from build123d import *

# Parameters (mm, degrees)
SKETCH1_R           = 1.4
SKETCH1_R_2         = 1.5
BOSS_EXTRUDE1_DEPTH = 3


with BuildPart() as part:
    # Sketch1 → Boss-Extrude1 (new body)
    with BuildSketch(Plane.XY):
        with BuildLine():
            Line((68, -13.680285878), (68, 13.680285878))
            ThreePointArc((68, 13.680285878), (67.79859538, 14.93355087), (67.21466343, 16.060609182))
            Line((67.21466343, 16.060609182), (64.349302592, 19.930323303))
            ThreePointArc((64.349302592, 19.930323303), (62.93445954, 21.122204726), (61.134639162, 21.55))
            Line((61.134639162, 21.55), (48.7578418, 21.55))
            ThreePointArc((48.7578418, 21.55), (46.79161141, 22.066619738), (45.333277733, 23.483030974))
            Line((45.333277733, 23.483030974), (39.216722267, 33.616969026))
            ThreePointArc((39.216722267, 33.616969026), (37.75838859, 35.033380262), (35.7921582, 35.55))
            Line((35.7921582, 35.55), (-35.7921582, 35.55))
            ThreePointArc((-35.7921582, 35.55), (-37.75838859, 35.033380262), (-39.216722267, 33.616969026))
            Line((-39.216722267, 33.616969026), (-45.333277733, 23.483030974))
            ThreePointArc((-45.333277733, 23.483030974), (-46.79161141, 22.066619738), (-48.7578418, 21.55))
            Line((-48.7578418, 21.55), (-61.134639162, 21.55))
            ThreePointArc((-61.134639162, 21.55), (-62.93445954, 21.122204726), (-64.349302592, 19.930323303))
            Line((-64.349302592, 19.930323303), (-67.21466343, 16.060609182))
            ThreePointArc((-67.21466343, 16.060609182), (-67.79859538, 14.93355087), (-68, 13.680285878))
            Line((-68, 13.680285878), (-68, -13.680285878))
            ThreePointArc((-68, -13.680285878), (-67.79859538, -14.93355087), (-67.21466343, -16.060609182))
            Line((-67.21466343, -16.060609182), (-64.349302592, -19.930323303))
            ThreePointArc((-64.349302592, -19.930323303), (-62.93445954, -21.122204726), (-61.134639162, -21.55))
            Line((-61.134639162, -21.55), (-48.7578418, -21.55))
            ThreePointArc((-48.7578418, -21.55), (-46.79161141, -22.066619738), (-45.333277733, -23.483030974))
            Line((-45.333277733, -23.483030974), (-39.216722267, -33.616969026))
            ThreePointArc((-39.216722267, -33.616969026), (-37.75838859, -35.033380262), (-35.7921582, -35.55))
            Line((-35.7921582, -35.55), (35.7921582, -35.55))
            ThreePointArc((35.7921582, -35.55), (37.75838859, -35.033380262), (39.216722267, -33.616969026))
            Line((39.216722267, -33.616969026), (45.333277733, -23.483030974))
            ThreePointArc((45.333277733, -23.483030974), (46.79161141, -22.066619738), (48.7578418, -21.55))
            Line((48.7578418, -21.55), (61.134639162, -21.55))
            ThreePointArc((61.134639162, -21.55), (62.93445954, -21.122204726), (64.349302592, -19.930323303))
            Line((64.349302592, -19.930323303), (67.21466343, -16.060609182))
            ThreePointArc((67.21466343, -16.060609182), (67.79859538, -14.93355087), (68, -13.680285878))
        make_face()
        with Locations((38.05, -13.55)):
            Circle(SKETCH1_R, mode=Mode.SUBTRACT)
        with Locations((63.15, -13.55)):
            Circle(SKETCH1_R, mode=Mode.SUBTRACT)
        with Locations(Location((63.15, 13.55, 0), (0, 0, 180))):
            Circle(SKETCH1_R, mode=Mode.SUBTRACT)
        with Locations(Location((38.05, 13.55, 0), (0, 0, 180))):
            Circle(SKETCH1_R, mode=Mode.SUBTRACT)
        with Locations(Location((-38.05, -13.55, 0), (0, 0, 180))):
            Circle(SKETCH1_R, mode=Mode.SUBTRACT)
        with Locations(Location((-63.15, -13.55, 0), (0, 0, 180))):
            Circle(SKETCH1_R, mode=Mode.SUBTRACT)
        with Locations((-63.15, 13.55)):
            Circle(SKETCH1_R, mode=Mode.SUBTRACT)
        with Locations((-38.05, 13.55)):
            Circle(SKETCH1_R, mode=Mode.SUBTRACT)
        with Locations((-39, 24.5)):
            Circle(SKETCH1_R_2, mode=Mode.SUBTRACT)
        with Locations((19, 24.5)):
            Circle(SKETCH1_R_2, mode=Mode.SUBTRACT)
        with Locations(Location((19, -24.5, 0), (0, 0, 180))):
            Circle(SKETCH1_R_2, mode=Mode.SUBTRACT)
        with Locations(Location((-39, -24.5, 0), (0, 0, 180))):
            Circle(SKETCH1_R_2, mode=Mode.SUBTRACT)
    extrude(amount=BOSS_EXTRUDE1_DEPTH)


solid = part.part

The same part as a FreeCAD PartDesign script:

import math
import FreeCAD as App
import Part
import Sketcher
from FreeCAD import Vector

doc = App.newDocument("Part")
body = doc.addObject("PartDesign::Body", "Body")

# Sketch on XY plane
sketch1 = body.newObject("Sketcher::SketchObject", "Sketch")
sketch1.AttachmentSupport = (doc.getObject("XY_Plane"), [""])
sketch1.MapMode = "FlatFace"
sketch1.addGeometry([
    Part.LineSegment(Vector(68, -13.680286, 0), Vector(68, 13.680286, 0)),  # 0
    Part.ArcOfCircle(Part.Circle(Vector(64, 13.680286, 0), Vector(0, 0, 1), 4), math.radians(0), math.radians(36.518394)),  # 1
    Part.LineSegment(Vector(67.214663, 16.060609, 0), Vector(64.349303, 19.930323, 0)),  # 2
    Part.ArcOfCircle(Part.Circle(Vector(61.134639, 17.55, 0), Vector(0, 0, 1), 4), math.radians(36.518394), math.radians(90)),  # 3
    Part.LineSegment(Vector(61.134639, 21.55, 0), Vector(48.757842, 21.55, 0)),  # 4
    Part.ArcOfCircle(Part.Circle(Vector(48.757842, 25.55, 0), Vector(0, 0, 1), 4), math.radians(-148.886019), math.radians(-90)),  # 5
    Part.LineSegment(Vector(45.333278, 23.483031, 0), Vector(39.216722, 33.616969, 0)),  # 6
    Part.ArcOfCircle(Part.Circle(Vector(35.792158, 31.55, 0), Vector(0, 0, 1), 4), math.radians(31.113981), math.radians(90)),  # 7
    Part.LineSegment(Vector(35.792158, 35.55, 0), Vector(-35.792158, 35.55, 0)),  # 8
    Part.ArcOfCircle(Part.Circle(Vector(-35.792158, 31.55, 0), Vector(0, 0, 1), 4), math.radians(90), math.radians(148.886019)),  # 9
    Part.LineSegment(Vector(-39.216722, 33.616969, 0), Vector(-45.333278, 23.483031, 0)),  # 10
    Part.ArcOfCircle(Part.Circle(Vector(-48.757842, 25.55, 0), Vector(0, 0, 1), 4), math.radians(-90), math.radians(-31.113981)),  # 11
    Part.LineSegment(Vector(-48.757842, 21.55, 0), Vector(-61.134639, 21.55, 0)),  # 12
    Part.ArcOfCircle(Part.Circle(Vector(-61.134639, 17.55, 0), Vector(0, 0, 1), 4), math.radians(90), math.radians(143.481606)),  # 13
    Part.LineSegment(Vector(-64.349303, 19.930323, 0), Vector(-67.214663, 16.060609, 0)),  # 14
    Part.ArcOfCircle(Part.Circle(Vector(-64, 13.680286, 0), Vector(0, 0, 1), 4), math.radians(143.481606), math.radians(180)),  # 15
    Part.LineSegment(Vector(-68, 13.680286, 0), Vector(-68, -13.680286, 0)),  # 16
    Part.ArcOfCircle(Part.Circle(Vector(-64, -13.680286, 0), Vector(0, 0, 1), 4), math.radians(180), math.radians(216.518394)),  # 17
    Part.LineSegment(Vector(-67.214663, -16.060609, 0), Vector(-64.349303, -19.930323, 0)),  # 18
    Part.ArcOfCircle(Part.Circle(Vector(-61.134639, -17.55, 0), Vector(0, 0, 1), 4), math.radians(-143.481606), math.radians(-90)),  # 19
    Part.LineSegment(Vector(-61.134639, -21.55, 0), Vector(-48.757842, -21.55, 0)),  # 20
    Part.ArcOfCircle(Part.Circle(Vector(-48.757842, -25.55, 0), Vector(0, 0, 1), 4), math.radians(31.113981), math.radians(90)),  # 21
    Part.LineSegment(Vector(-45.333278, -23.483031, 0), Vector(-39.216722, -33.616969, 0)),  # 22
    Part.ArcOfCircle(Part.Circle(Vector(-35.792158, -31.55, 0), Vector(0, 0, 1), 4), math.radians(-148.886019), math.radians(-90)),  # 23
    Part.LineSegment(Vector(-35.792158, -35.55, 0), Vector(35.792158, -35.55, 0)),  # 24
    Part.ArcOfCircle(Part.Circle(Vector(35.792158, -31.55, 0), Vector(0, 0, 1), 4), math.radians(-90), math.radians(-31.113981)),  # 25
    Part.LineSegment(Vector(39.216722, -33.616969, 0), Vector(45.333278, -23.483031, 0)),  # 26
    Part.ArcOfCircle(Part.Circle(Vector(48.757842, -25.55, 0), Vector(0, 0, 1), 4), math.radians(90), math.radians(148.886019)),  # 27
    Part.LineSegment(Vector(48.757842, -21.55, 0), Vector(61.134639, -21.55, 0)),  # 28
    Part.ArcOfCircle(Part.Circle(Vector(61.134639, -17.55, 0), Vector(0, 0, 1), 4), math.radians(-90), math.radians(-36.518394)),  # 29
    Part.LineSegment(Vector(64.349303, -19.930323, 0), Vector(67.214663, -16.060609, 0)),  # 30
    Part.ArcOfCircle(Part.Circle(Vector(64, -13.680286, 0), Vector(0, 0, 1), 4), math.radians(-36.518394), math.radians(0)),  # 31
    Part.Circle(Vector(-39, -24.5, 0), Vector(0, 0, 1), 1.5),  # 32
    Part.Circle(Vector(-63.15, -13.55, 0), Vector(0, 0, 1), 1.4),  # 33
    Part.Circle(Vector(-38.05, -13.55, 0), Vector(0, 0, 1), 1.4),  # 34
    Part.Circle(Vector(19, -24.5, 0), Vector(0, 0, 1), 1.5),  # 35
    Part.Circle(Vector(38.05, -13.55, 0), Vector(0, 0, 1), 1.4),  # 36
    Part.Circle(Vector(63.15, -13.55, 0), Vector(0, 0, 1), 1.4),  # 37
    Part.Circle(Vector(-63.15, 13.55, 0), Vector(0, 0, 1), 1.4),  # 38
    Part.Circle(Vector(-38.05, 13.55, 0), Vector(0, 0, 1), 1.4),  # 39
    Part.Circle(Vector(-39, 24.5, 0), Vector(0, 0, 1), 1.5),  # 40
    Part.Circle(Vector(19, 24.5, 0), Vector(0, 0, 1), 1.5),  # 41
    Part.Circle(Vector(38.05, 13.55, 0), Vector(0, 0, 1), 1.4),  # 42
    Part.Circle(Vector(63.15, 13.55, 0), Vector(0, 0, 1), 1.4),  # 43
], False)
sketch1.addConstraint([
    Sketcher.Constraint("Tangent", 0, 2, 1, 1),
    Sketcher.Constraint("Tangent", 1, 2, 2, 1),
    Sketcher.Constraint("Tangent", 2, 2, 3, 1),
    Sketcher.Constraint("Tangent", 3, 2, 4, 1),
    Sketcher.Constraint("Tangent", 4, 2, 5, 2),
    Sketcher.Constraint("Tangent", 5, 1, 6, 1),
    Sketcher.Constraint("Tangent", 6, 2, 7, 1),
    Sketcher.Constraint("Tangent", 7, 2, 8, 1),
    Sketcher.Constraint("Tangent", 8, 2, 9, 1),
    Sketcher.Constraint("Tangent", 9, 2, 10, 1),
    Sketcher.Constraint("Tangent", 10, 2, 11, 2),
    Sketcher.Constraint("Tangent", 11, 1, 12, 1),
    Sketcher.Constraint("Tangent", 12, 2, 13, 1),
    Sketcher.Constraint("Tangent", 13, 2, 14, 1),
    Sketcher.Constraint("Tangent", 14, 2, 15, 1),
    Sketcher.Constraint("Tangent", 15, 2, 16, 1),
    Sketcher.Constraint("Tangent", 16, 2, 17, 1),
    Sketcher.Constraint("Tangent", 17, 2, 18, 1),
    Sketcher.Constraint("Tangent", 18, 2, 19, 1),
    Sketcher.Constraint("Tangent", 19, 2, 20, 1),
    Sketcher.Constraint("Tangent", 20, 2, 21, 2),
    Sketcher.Constraint("Tangent", 21, 1, 22, 1),
    Sketcher.Constraint("Tangent", 22, 2, 23, 1),
    Sketcher.Constraint("Tangent", 23, 2, 24, 1),
    Sketcher.Constraint("Tangent", 24, 2, 25, 1),
    Sketcher.Constraint("Tangent", 25, 2, 26, 1),
    Sketcher.Constraint("Tangent", 26, 2, 27, 2),
    Sketcher.Constraint("Tangent", 27, 1, 28, 1),
    Sketcher.Constraint("Tangent", 28, 2, 29, 1),
    Sketcher.Constraint("Tangent", 29, 2, 30, 1),
    Sketcher.Constraint("Tangent", 30, 2, 31, 1),
    Sketcher.Constraint("Tangent", 31, 2, 0, 1),
    Sketcher.Constraint("Vertical", 0),
    Sketcher.Constraint("Horizontal", 4),
    Sketcher.Constraint("Horizontal", 8),
    Sketcher.Constraint("Horizontal", 12),
    Sketcher.Constraint("Vertical", 16),
    Sketcher.Constraint("Horizontal", 20),
    Sketcher.Constraint("Horizontal", 24),
    Sketcher.Constraint("Horizontal", 28),
    Sketcher.Constraint("Equal", 1, 3),
    Sketcher.Constraint("Equal", 3, 5),
    Sketcher.Constraint("Equal", 5, 7),
    Sketcher.Constraint("Equal", 7, 9),
    Sketcher.Constraint("Equal", 9, 11),
    Sketcher.Constraint("Equal", 11, 13),
    Sketcher.Constraint("Equal", 13, 15),
    Sketcher.Constraint("Equal", 15, 17),
    Sketcher.Constraint("Equal", 17, 19),
    Sketcher.Constraint("Equal", 19, 21),
    Sketcher.Constraint("Equal", 21, 23),
    Sketcher.Constraint("Equal", 23, 25),
    Sketcher.Constraint("Equal", 25, 27),
    Sketcher.Constraint("Equal", 27, 29),
    Sketcher.Constraint("Equal", 29, 31),
    Sketcher.Constraint("Equal", 33, 34),
    Sketcher.Constraint("Equal", 32, 35),
    Sketcher.Constraint("Equal", 34, 36),
    Sketcher.Constraint("Equal", 36, 37),
    Sketcher.Constraint("Equal", 37, 38),
    Sketcher.Constraint("Equal", 38, 39),
    Sketcher.Constraint("Equal", 35, 40),
    Sketcher.Constraint("Equal", 40, 41),
    Sketcher.Constraint("Equal", 39, 42),
    Sketcher.Constraint("Equal", 42, 43),
    Sketcher.Constraint("Symmetric", 1, 3, 17, 3, -1, 1),
    Sketcher.Constraint("Symmetric", 3, 3, 19, 3, -1, 1),
    Sketcher.Constraint("Symmetric", 7, 3, 23, 3, -1, 1),
    Sketcher.Constraint("Symmetric", 11, 3, 27, 3, -1, 1),
    Sketcher.Constraint("Symmetric", 37, 3, 38, 3, -1, 1),
    Sketcher.Constraint("Symmetric", 36, 3, 39, 3, -1, 1),
    Sketcher.Constraint("Symmetric", 34, 3, 42, 3, -1, 1),
    Sketcher.Constraint("Symmetric", 33, 3, 43, 3, -1, 1),
    Sketcher.Constraint("Symmetric", 13, 2, 29, 2, -1, 1),
    Sketcher.Constraint("Symmetric", 5, 3, 11, 3, -2),
    Sketcher.Constraint("Symmetric", 34, 3, 36, 3, -2),
    Sketcher.Constraint("Symmetric", 33, 3, 37, 3, -2),
    Sketcher.Constraint("Symmetric", 2, 2, 13, 2, -2),
    Sketcher.Constraint("Symmetric", 22, 2, 25, 2, -2),
    Sketcher.Constraint("Symmetric", 32, 3, 40, 3, -1),
    Sketcher.Constraint("Symmetric", 35, 3, 41, 3, -1),
    Sketcher.Constraint("Parallel", 10, 26),
    Sketcher.Constraint("Horizontal", 33, 3, 34, 3),
    Sketcher.Constraint("Horizontal", 32, 3, 35, 3),
    Sketcher.Constraint("Diameter", 32, 3.0),
    Sketcher.Constraint("Radius", 1, 4.0),
    Sketcher.Constraint("Diameter", 33, 2.8),
    Sketcher.Constraint("DistanceX", -1, 1, 1, 3, 64.0),
    Sketcher.Constraint("DistanceX", 32, 3, -1, 1, 39.0),
    Sketcher.Constraint("DistanceX", -1, 1, 35, 3, 19.0),
    Sketcher.Constraint("DistanceY", 5, 3, 7, 3, 6.0),
    Sketcher.Constraint("DistanceY", 19, 3, 33, 3, 4.0),
    Sketcher.Constraint("DistanceY", 32, 3, -1, 1, 24.5),
    Sketcher.Constraint("DistanceY", 19, 3, 13, 3, 35.1),
    Sketcher.Constraint("DistanceX", 33, 3, 34, 3, 25.1),
    Sketcher.Constraint("DistanceX", 33, 3, -1, 1, 63.15),
    Sketcher.Constraint("DistanceX", 9, 3, 5, 3, 84.55),
    Sketcher.Constraint("DistanceY", 0, 1, 0, 2, 27.360572),
    Sketcher.Constraint("Distance", 2, 4.815078),
    Sketcher.Constraint("DistanceX", 4, 2, 4, 1, 12.376797),
])
pad1 = body.newObject("PartDesign::Pad", "Pad")
pad1.Profile = sketch1
pad1.Length = 3

doc.recompute()
